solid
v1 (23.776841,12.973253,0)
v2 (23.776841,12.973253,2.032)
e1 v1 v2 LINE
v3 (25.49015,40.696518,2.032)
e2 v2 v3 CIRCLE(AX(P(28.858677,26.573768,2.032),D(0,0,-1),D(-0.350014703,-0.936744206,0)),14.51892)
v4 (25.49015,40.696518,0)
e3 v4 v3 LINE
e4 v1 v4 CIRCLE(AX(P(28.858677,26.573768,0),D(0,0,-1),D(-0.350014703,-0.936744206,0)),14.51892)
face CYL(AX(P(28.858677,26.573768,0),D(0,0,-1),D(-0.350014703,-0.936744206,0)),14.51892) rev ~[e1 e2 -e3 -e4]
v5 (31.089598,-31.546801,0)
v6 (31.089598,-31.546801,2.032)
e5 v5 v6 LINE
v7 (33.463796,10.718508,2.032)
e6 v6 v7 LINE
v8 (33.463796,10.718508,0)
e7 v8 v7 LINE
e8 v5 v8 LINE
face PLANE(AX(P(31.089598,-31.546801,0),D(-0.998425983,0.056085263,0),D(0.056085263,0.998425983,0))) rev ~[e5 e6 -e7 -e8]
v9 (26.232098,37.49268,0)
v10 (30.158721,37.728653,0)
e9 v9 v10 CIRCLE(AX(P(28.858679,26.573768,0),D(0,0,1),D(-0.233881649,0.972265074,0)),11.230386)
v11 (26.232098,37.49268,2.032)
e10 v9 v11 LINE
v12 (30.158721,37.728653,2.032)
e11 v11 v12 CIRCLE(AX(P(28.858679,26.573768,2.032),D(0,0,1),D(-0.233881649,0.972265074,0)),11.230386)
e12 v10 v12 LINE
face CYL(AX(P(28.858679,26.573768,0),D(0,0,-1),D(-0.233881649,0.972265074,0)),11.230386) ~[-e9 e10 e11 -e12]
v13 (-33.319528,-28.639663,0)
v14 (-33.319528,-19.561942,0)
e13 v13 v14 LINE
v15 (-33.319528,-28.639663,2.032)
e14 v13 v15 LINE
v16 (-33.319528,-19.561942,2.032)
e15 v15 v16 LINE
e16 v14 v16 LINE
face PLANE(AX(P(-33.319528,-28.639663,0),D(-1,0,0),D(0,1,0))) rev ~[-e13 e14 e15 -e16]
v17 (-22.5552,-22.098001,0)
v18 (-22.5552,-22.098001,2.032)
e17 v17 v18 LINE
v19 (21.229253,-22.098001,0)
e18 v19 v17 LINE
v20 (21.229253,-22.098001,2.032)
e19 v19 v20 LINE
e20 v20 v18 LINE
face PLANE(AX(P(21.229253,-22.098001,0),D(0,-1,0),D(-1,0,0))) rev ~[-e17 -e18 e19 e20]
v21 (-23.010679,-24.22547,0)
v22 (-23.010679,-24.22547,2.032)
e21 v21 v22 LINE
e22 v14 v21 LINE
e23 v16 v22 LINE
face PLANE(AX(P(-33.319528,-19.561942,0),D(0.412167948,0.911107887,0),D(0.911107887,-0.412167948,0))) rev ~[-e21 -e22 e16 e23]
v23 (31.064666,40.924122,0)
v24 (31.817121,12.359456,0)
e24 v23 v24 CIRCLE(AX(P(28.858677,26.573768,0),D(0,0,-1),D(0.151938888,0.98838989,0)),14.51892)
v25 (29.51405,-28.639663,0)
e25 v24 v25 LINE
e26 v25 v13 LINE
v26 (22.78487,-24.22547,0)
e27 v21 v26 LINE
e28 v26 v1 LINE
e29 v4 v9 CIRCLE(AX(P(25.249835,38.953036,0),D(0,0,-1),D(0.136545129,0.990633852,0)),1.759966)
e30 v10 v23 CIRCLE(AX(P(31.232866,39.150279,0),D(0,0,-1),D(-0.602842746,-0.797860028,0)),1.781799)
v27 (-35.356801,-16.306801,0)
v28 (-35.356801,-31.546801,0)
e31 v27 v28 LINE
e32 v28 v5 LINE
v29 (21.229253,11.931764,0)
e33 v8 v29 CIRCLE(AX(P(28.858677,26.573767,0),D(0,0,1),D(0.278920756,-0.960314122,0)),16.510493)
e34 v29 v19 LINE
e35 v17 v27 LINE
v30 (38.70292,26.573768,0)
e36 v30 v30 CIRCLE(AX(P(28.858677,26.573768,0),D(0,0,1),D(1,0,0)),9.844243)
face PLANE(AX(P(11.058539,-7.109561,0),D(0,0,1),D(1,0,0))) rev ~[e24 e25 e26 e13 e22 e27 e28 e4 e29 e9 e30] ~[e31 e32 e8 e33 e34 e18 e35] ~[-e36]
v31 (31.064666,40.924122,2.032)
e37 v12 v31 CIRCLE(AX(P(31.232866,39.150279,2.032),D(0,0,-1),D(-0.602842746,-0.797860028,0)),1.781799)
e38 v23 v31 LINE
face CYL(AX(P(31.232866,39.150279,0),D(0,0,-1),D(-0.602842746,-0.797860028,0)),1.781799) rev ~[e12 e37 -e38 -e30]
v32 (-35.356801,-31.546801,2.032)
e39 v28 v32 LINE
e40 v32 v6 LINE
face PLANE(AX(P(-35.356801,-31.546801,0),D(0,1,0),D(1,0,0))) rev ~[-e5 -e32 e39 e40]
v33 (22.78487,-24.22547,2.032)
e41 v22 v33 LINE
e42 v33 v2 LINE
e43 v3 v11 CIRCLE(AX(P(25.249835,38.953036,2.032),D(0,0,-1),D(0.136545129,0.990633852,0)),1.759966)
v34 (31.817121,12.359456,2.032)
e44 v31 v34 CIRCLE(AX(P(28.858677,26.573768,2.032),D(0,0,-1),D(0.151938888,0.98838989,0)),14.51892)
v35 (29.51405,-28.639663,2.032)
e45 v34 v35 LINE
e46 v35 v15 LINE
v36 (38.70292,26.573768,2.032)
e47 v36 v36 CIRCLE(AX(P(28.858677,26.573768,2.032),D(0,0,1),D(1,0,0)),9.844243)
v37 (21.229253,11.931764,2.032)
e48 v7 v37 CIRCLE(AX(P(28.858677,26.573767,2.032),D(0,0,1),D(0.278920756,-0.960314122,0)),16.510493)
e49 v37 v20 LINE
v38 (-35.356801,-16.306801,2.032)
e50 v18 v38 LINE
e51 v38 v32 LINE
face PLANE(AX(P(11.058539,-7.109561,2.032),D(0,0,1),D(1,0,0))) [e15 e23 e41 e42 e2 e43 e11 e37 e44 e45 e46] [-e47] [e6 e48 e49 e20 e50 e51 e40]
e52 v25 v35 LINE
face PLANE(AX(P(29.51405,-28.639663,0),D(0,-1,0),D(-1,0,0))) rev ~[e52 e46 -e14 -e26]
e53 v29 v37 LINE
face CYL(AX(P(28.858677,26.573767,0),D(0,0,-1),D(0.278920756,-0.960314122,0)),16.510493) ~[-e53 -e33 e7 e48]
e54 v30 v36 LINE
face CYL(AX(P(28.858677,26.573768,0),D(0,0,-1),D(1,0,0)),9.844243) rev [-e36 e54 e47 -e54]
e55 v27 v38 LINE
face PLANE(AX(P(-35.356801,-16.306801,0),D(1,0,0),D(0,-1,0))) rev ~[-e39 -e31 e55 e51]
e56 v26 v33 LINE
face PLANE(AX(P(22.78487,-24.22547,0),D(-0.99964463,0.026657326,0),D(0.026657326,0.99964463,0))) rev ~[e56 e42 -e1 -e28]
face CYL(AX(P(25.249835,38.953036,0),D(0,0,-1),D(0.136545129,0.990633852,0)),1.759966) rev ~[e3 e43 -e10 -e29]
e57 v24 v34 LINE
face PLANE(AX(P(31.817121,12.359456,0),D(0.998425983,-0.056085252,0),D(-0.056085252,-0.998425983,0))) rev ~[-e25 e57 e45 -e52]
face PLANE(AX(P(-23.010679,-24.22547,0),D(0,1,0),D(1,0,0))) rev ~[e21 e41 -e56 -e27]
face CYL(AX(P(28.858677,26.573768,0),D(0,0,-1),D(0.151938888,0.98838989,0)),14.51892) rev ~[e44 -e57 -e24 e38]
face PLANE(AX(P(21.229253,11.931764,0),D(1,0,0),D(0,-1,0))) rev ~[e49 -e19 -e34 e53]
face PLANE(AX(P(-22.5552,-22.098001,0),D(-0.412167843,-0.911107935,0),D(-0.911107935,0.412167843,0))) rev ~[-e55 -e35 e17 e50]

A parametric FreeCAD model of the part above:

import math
import FreeCAD as App
import Part
import Sketcher
from FreeCAD import Vector
Q = App.Units.Quantity

doc = App.newDocument("Part")
body = doc.addObject("PartDesign::Body", "Body")

sketch1 = body.newObject("Sketcher::SketchObject", "Sketch")
sketch1.AttachmentSupport = (doc.getObject("XY_Plane"), [""])
sketch1.MapMode = "FlatFace"
sketch1.addGeometry(Part.LineSegment(Vector(31.1, -31.5, 0), Vector(33.5, 10.7, 0)), False)
sketch1.addGeometry(Part.ArcOfCircle(Part.Circle(Vector(28.9, 26.6, 0), Vector(0, 0, 1), 16.5), math.radians(-74), math.radians(242)), False)
sketch1.addGeometry(Part.LineSegment(Vector(21.2, 11.9, 0), Vector(21.2, -22.1, 0)), False)
sketch1.addGeometry(Part.LineSegment(Vector(21.2, -22.1, 0), Vector(-22.6, -22.1, 0)), False)
sketch1.addGeometry(Part.LineSegment(Vector(-22.6, -22.1, 0), Vector(-35.4, -16.3, 0)), False)
sketch1.addGeometry(Part.LineSegment(Vector(-35.4, -16.3, 0), Vector(-35.4, -31.5, 0)), False)
sketch1.addGeometry(Part.LineSegment(Vector(-35.4, -31.5, 0), Vector(31.1, -31.5, 0)), False)
sketch1.addGeometry(Part.ArcOfCircle(Part.Circle(Vector(31.2, 39.2, 0), Vector(0, 0, 1), 1.8), math.radians(95), math.radians(233)), False)
sketch1.addGeometry(Part.ArcOfCircle(Part.Circle(Vector(28.9, 26.6, 0), Vector(0, 0, 1), 14.5), math.radians(-78), math.radians(81)), False)
sketch1.addGeometry(Part.LineSegment(Vector(31.8, 12.4, 0), Vector(29.5, -28.6, 0)), False)
sketch1.addGeometry(Part.LineSegment(Vector(29.5, -28.6, 0), Vector(-33.3, -28.6, 0)), False)
sketch1.addGeometry(Part.LineSegment(Vector(-33.3, -28.6, 0), Vector(-33.3, -19.6, 0)), False)
sketch1.addGeometry(Part.LineSegment(Vector(-33.3, -19.6, 0), Vector(-23, -24.2, 0)), False)
sketch1.addGeometry(Part.LineSegment(Vector(-23, -24.2, 0), Vector(22.8, -24.2, 0)), False)
sketch1.addGeometry(Part.LineSegment(Vector(22.8, -24.2, 0), Vector(23.8, 13, 0)), False)
sketch1.addGeometry(Part.ArcOfCircle(Part.Circle(Vector(28.9, 26.6, 0), Vector(0, 0, 1), 14.5), math.radians(103), math.radians(250)), False)
sketch1.addGeometry(Part.ArcOfCircle(Part.Circle(Vector(25.2, 39, 0), Vector(0, 0, 1), 1.8), math.radians(-56), math.radians(82)), False)
sketch1.addGeometry(Part.ArcOfCircle(Part.Circle(Vector(28.9, 26.6, 0), Vector(0, 0, 1), 11.2), math.radians(104), math.radians(443)), False)
sketch1.addGeometry(Part.Circle(Vector(28.9, 26.6, 0), Vector(0, 0, 1), 9.8), False)
sketch1.addConstraint(Sketcher.Constraint("Coincident", 0, 2, 1, 1))
sketch1.addConstraint(Sketcher.Constraint("Coincident", 1, 2, 2, 1))
sketch1.addConstraint(Sketcher.Constraint("Coincident", 2, 2, 3, 1))
sketch1.addConstraint(Sketcher.Constraint("Coincident", 3, 2, 4, 1))
sketch1.addConstraint(Sketcher.Constraint("Coincident", 4, 2, 5, 1))
sketch1.addConstraint(Sketcher.Constraint("Coincident", 5, 2, 6, 1))
sketch1.addConstraint(Sketcher.Constraint("Coincident", 6, 2, 0, 1))
sketch1.addConstraint(Sketcher.Constraint("Coincident", 7, 1, 8, 2))
sketch1.addConstraint(Sketcher.Constraint("Coincident", 8, 1, 9, 1))
sketch1.addConstraint(Sketcher.Constraint("Coincident", 9, 2, 10, 1))
sketch1.addConstraint(Sketcher.Constraint("Coincident", 10, 2, 11, 1))
sketch1.addConstraint(Sketcher.Constraint("Coincident", 11, 2, 12, 1))
sketch1.addConstraint(Sketcher.Constraint("Coincident", 12, 2, 13, 1))
sketch1.addConstraint(Sketcher.Constraint("Coincident", 13, 2, 14, 1))
sketch1.addConstraint(Sketcher.Constraint("Coincident", 14, 2, 15, 2))
sketch1.addConstraint(Sketcher.Constraint("Coincident", 15, 1, 16, 2))
sketch1.addConstraint(Sketcher.Constraint("Coincident", 16, 1, 17, 1))
sketch1.addConstraint(Sketcher.Constraint("Coincident", 17, 2, 7, 2))
sketch1.addConstraint(Sketcher.Constraint("Vertical", 2))
sketch1.addConstraint(Sketcher.Constraint("Horizontal", 3))
sketch1.addConstraint(Sketcher.Constraint("Vertical", 5))
sketch1.addConstraint(Sketcher.Constraint("Horizontal", 6))
sketch1.addConstraint(Sketcher.Constraint("Horizontal", 10))
sketch1.addConstraint(Sketcher.Constraint("Vertical", 11))
sketch1.addConstraint(Sketcher.Constraint("Horizontal", 13))
sketch1.addConstraint(Sketcher.Constraint("Coincident", 8, 3, 1, 3))
sketch1.addConstraint(Sketcher.Constraint("Coincident", 15, 3, 1, 3))
sketch1.addConstraint(Sketcher.Constraint("Coincident", 17, 3, 1, 3))
sketch1.addConstraint(Sketcher.Constraint("Coincident", 18, 3, 1, 3))
sketch1.addConstraint(Sketcher.Constraint("Equal", 8, 15))
sketch1.addConstraint(Sketcher.Constraint("Parallel", 0, 9))
sketch1.addConstraint(Sketcher.Constraint("Parallel", 4, 12))
sketch1.addConstraint(Sketcher.Constraint("DistanceY", 5, 2, 5, 1, Q("0.6 in")))
sketch1.addConstraint(Sketcher.Constraint("DistanceX", 6, 1, 6, 2, Q("2.616 in")))
sketch1.addConstraint(Sketcher.Constraint("DistanceY", 2, 2, -1, 1, Q("0.87 in")))
sketch1.addConstraint(Sketcher.Constraint("Radius", 7, Q("1.781799 mm")))
sketch1.addConstraint(Sketcher.Constraint("DistanceX", 3, 2, -1, 1, Q("0.888 in")))
sketch1.addConstraint(Sketcher.Constraint("DistanceX", 4, 2, -1, 1, Q("1.392 in")))
sketch1.addConstraint(Sketcher.Constraint("DistanceY", 4, 2, -1, 1, Q("0.642 in")))
sketch1.addConstraint(Sketcher.Constraint("Radius", 8, Q("14.51892 mm")))
sketch1.addConstraint(Sketcher.Constraint("Diameter", 18, Q("19.688486 mm")))
sketch1.addConstraint(Sketcher.Constraint("Radius", 1, Q("16.510493 mm")))
sketch1.addConstraint(Sketcher.Constraint("Radius", 16, Q("1.759966 mm")))
sketch1.addConstraint(Sketcher.Constraint("Radius", 17, Q("11.230386 mm")))
sketch1.addConstraint(Sketcher.Constraint("DistanceX", 10, 2, 10, 1, Q("62.833578 mm")))
sketch1.addConstraint(Sketcher.Constraint("DistanceX", 13, 1, 13, 2, Q("45.795549 mm")))
sketch1.addConstraint(Sketcher.Constraint("DistanceY", 11, 1, 11, 2, Q("9.077721 mm")))
sketch1.addConstraint(Sketcher.Constraint("DistanceX", 6, 2, 0, 2, Q("2.374198 mm")))
sketch1.addConstraint(Sketcher.Constraint("DistanceX", 7, 1, 7, 3, Q("0.1682 mm")))
sketch1.addConstraint(Sketcher.Constraint("DistanceY", 16, 1, 7, 3, Q("1.657599 mm")))
sketch1.addConstraint(Sketcher.Constraint("Distance", 0, Q("42.33194 mm")))
sketch1.addConstraint(Sketcher.Constraint("Distance", 12, Q("11.31463 mm")))
sketch1.addConstraint(Sketcher.Constraint("DistanceX", 3, 2, 3, 1, Q("43.784453 mm")))
sketch1.addConstraint(Sketcher.Constraint("DistanceY", 2, 2, 2, 1, Q("34.029765 mm")))
sketch1.addConstraint(Sketcher.Constraint("DistanceY", -1, 1, 7, 3, Q("39.150279 mm")))
sketch1.addConstraint(Sketcher.Constraint("DistanceX", -1, 1, 8, 1, Q("31.817121 mm")))
sketch1.addConstraint(Sketcher.Constraint("DistanceX", -1, 1, 9, 2, Q("29.51405 mm")))
sketch1.addConstraint(Sketcher.Constraint("DistanceX", -1, 1, 14, 2, Q("23.776841 mm")))
sketch1.addConstraint(Sketcher.Constraint("DistanceX", -1, 1, 15, 1, Q("25.49015 mm")))
pad1 = body.newObject("PartDesign::Pad", "Pad")
pad1.Profile = sketch1
pad1.Length = Q("0.08 in")

doc.recompute()
